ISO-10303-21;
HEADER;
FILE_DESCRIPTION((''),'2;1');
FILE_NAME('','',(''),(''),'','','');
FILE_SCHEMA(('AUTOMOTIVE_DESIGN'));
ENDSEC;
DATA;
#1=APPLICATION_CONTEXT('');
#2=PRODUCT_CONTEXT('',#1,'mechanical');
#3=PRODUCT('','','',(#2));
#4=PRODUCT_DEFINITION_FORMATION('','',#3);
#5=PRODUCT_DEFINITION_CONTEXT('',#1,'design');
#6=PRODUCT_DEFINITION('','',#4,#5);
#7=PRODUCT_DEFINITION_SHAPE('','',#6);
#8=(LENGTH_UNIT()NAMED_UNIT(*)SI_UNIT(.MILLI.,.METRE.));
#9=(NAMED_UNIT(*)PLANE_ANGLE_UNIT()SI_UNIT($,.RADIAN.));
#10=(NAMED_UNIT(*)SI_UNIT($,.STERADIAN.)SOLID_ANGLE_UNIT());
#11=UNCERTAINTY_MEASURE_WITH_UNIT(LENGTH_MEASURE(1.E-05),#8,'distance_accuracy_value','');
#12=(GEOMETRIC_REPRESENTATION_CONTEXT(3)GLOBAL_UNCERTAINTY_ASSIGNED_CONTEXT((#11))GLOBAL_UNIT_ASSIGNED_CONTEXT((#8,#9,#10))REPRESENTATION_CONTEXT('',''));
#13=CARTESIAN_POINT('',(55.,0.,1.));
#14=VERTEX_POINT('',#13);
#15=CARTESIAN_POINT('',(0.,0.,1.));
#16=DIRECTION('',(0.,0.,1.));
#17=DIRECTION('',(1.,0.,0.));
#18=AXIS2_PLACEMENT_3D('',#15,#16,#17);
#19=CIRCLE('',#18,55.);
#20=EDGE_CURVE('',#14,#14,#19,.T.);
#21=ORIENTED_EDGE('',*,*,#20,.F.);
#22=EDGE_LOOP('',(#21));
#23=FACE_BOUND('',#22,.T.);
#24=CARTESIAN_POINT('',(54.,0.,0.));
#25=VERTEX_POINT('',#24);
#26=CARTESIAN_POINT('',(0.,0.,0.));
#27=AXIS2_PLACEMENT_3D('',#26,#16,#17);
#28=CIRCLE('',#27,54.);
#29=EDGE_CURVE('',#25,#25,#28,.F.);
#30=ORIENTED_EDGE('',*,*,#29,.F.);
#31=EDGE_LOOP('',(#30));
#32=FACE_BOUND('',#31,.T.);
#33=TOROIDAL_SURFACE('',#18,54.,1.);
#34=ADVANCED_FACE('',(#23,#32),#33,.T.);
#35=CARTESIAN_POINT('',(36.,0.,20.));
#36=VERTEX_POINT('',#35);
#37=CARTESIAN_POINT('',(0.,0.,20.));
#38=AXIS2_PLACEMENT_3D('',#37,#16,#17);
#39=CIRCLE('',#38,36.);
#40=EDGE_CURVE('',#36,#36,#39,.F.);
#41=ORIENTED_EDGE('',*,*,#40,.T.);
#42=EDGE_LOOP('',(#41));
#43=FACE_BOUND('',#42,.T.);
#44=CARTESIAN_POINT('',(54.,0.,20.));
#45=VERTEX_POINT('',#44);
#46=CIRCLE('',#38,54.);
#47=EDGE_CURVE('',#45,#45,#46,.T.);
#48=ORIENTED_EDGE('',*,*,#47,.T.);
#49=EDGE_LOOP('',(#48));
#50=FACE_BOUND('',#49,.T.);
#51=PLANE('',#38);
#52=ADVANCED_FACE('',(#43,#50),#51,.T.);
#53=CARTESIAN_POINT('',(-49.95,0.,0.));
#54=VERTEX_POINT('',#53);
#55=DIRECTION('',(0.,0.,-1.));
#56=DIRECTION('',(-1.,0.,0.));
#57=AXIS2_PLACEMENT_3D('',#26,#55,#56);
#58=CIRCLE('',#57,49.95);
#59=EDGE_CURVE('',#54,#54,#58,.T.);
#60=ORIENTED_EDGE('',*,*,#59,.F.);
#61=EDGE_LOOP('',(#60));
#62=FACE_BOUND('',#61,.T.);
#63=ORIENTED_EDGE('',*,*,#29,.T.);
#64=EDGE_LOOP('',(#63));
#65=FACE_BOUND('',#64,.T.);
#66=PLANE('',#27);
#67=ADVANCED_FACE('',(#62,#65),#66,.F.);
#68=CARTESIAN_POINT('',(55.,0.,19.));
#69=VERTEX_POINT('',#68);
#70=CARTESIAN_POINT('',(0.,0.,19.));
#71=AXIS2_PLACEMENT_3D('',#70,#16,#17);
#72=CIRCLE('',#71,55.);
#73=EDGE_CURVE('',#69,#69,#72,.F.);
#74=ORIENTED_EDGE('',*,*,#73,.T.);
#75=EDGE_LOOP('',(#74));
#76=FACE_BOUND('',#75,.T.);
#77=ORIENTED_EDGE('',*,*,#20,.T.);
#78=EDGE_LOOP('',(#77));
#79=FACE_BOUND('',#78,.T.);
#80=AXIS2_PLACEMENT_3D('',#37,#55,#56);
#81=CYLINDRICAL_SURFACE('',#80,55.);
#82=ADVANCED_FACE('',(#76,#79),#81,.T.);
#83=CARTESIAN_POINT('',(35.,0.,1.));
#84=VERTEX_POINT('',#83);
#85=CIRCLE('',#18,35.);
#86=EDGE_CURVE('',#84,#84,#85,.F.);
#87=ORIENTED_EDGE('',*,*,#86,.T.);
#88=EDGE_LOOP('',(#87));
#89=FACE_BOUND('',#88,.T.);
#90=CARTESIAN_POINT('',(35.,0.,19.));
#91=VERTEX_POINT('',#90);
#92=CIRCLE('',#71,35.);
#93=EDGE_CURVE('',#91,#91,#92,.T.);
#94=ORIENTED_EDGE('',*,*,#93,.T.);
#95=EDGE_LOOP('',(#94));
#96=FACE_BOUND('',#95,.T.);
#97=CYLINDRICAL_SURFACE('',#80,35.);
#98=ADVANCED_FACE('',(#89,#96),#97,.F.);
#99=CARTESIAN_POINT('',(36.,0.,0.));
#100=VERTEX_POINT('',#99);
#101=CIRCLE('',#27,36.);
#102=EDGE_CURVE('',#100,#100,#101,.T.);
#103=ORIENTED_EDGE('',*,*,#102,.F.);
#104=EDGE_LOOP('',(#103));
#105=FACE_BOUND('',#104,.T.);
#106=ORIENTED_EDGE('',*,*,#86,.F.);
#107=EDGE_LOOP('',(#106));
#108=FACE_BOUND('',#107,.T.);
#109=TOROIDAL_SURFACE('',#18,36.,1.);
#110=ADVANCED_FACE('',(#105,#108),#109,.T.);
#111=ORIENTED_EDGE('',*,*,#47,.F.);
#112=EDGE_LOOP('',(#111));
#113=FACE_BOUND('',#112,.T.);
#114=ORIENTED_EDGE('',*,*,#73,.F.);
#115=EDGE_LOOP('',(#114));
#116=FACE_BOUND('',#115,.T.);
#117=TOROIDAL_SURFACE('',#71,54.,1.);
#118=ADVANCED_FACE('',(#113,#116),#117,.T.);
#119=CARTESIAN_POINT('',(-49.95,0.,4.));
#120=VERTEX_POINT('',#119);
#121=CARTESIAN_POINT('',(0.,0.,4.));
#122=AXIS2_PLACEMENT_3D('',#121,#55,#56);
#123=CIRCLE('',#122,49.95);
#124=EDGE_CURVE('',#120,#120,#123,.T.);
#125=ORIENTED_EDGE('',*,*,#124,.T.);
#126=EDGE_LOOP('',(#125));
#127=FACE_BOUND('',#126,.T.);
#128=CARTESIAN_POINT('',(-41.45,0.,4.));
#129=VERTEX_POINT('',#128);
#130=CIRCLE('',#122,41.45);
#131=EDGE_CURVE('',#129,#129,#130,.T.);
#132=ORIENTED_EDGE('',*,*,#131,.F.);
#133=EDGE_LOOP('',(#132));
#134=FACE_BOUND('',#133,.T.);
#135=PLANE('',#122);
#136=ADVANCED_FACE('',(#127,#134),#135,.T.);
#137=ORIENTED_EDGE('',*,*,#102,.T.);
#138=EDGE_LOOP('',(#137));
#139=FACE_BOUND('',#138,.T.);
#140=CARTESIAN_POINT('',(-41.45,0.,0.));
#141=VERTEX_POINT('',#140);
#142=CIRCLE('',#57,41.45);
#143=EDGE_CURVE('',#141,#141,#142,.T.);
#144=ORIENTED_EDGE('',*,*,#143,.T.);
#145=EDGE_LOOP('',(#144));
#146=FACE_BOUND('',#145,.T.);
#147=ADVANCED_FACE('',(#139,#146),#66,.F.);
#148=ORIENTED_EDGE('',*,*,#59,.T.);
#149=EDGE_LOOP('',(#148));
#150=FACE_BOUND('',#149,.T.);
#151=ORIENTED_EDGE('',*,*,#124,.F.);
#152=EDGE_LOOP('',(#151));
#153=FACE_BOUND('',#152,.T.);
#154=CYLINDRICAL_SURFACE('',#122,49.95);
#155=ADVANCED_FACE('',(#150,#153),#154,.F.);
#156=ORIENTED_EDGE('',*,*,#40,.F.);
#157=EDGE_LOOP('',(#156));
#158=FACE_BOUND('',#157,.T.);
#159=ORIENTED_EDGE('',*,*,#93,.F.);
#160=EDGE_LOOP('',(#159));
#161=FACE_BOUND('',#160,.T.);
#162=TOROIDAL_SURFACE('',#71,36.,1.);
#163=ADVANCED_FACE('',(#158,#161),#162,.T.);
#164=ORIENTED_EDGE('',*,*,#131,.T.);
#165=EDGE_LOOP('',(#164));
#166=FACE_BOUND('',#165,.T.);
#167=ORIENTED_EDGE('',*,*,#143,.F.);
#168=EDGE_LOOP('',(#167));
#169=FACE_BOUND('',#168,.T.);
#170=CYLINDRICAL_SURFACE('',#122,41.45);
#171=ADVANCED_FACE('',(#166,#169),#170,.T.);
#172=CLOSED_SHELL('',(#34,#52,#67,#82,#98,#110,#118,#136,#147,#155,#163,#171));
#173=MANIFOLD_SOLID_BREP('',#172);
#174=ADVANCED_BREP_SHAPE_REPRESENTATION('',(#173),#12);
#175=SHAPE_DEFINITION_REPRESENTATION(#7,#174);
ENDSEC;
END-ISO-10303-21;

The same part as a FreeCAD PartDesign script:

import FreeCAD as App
import Part
import Sketcher


def edges_at(feature, points):
    """Names of the edges that pass closest to the given points."""
    edges = feature.Shape.Edges
    near = lambda p: min(range(len(edges)), key=lambda i: edges[i].distToShape(Part.Vertex(*p))[0])
    return sorted({f"Edge{near(p) + 1}" for p in points})

doc = App.newDocument("Part")
body = doc.addObject("PartDesign::Body", "Body")

# Sketch on XY plane
sketch1 = body.newObject("Sketcher::SketchObject", "Sketch")
sketch1.AttachmentSupport = (doc.getObject("XY_Plane"), [""])
sketch1.MapMode = "FlatFace"
sketch1.addGeometry(Part.Circle(App.Vector(0, 0, 0), App.Vector(0, 0, 1), 55), False)
sketch1.addGeometry(Part.Circle(App.Vector(0, 0, 0), App.Vector(0, 0, 1), 35), False)
sketch1.addConstraint(Sketcher.Constraint("Coincident", 0, 3, -1, 1))
sketch1.addConstraint(Sketcher.Constraint("Coincident", 1, 3, -1, 1))
sketch1.addConstraint(Sketcher.Constraint("Diameter", 0, 110.0))
sketch1.addConstraint(Sketcher.Constraint("Diameter", 1, 70.0))
pad1 = body.newObject("PartDesign::Pad", "Pad")
pad1.Profile = sketch1
pad1.Length = 20
doc.recompute()

fillet = body.newObject("PartDesign::Fillet", "Fillet")
fillet.Base = (pad1, edges_at(pad1, [
    (-55, 0, 0),
    (-55, 0, 20),
    (-35, 0, 0),
    (-35, 0, 20),
]))
fillet.Radius = 1

# Sketch on XY plane
sketch2 = body.newObject("Sketcher::SketchObject", "Sketch001")
sketch2.AttachmentSupport = (doc.getObject("XY_Plane"), [""])
sketch2.MapMode = "FlatFace"
sketch2.addGeometry(Part.Circle(App.Vector(0, 0, 0), App.Vector(0, 0, 1), 50), False)
sketch2.addGeometry(Part.Circle(App.Vector(0, 0, 0), App.Vector(0, 0, 1), 41), False)
sketch2.addConstraint(Sketcher.Constraint("Coincident", 0, 3, -1, 1))
sketch2.addConstraint(Sketcher.Constraint("Coincident", 1, 3, -1, 1))
sketch2.addConstraint(Sketcher.Constraint("Diameter", 0, 99.9))
sketch2.addConstraint(Sketcher.Constraint("Diameter", 1, 82.9))
pocket1 = body.newObject("PartDesign::Pocket", "Pocket")
pocket1.Profile = sketch2
pocket1.Length = 4
pocket1.Reversed = True

doc.recompute()
